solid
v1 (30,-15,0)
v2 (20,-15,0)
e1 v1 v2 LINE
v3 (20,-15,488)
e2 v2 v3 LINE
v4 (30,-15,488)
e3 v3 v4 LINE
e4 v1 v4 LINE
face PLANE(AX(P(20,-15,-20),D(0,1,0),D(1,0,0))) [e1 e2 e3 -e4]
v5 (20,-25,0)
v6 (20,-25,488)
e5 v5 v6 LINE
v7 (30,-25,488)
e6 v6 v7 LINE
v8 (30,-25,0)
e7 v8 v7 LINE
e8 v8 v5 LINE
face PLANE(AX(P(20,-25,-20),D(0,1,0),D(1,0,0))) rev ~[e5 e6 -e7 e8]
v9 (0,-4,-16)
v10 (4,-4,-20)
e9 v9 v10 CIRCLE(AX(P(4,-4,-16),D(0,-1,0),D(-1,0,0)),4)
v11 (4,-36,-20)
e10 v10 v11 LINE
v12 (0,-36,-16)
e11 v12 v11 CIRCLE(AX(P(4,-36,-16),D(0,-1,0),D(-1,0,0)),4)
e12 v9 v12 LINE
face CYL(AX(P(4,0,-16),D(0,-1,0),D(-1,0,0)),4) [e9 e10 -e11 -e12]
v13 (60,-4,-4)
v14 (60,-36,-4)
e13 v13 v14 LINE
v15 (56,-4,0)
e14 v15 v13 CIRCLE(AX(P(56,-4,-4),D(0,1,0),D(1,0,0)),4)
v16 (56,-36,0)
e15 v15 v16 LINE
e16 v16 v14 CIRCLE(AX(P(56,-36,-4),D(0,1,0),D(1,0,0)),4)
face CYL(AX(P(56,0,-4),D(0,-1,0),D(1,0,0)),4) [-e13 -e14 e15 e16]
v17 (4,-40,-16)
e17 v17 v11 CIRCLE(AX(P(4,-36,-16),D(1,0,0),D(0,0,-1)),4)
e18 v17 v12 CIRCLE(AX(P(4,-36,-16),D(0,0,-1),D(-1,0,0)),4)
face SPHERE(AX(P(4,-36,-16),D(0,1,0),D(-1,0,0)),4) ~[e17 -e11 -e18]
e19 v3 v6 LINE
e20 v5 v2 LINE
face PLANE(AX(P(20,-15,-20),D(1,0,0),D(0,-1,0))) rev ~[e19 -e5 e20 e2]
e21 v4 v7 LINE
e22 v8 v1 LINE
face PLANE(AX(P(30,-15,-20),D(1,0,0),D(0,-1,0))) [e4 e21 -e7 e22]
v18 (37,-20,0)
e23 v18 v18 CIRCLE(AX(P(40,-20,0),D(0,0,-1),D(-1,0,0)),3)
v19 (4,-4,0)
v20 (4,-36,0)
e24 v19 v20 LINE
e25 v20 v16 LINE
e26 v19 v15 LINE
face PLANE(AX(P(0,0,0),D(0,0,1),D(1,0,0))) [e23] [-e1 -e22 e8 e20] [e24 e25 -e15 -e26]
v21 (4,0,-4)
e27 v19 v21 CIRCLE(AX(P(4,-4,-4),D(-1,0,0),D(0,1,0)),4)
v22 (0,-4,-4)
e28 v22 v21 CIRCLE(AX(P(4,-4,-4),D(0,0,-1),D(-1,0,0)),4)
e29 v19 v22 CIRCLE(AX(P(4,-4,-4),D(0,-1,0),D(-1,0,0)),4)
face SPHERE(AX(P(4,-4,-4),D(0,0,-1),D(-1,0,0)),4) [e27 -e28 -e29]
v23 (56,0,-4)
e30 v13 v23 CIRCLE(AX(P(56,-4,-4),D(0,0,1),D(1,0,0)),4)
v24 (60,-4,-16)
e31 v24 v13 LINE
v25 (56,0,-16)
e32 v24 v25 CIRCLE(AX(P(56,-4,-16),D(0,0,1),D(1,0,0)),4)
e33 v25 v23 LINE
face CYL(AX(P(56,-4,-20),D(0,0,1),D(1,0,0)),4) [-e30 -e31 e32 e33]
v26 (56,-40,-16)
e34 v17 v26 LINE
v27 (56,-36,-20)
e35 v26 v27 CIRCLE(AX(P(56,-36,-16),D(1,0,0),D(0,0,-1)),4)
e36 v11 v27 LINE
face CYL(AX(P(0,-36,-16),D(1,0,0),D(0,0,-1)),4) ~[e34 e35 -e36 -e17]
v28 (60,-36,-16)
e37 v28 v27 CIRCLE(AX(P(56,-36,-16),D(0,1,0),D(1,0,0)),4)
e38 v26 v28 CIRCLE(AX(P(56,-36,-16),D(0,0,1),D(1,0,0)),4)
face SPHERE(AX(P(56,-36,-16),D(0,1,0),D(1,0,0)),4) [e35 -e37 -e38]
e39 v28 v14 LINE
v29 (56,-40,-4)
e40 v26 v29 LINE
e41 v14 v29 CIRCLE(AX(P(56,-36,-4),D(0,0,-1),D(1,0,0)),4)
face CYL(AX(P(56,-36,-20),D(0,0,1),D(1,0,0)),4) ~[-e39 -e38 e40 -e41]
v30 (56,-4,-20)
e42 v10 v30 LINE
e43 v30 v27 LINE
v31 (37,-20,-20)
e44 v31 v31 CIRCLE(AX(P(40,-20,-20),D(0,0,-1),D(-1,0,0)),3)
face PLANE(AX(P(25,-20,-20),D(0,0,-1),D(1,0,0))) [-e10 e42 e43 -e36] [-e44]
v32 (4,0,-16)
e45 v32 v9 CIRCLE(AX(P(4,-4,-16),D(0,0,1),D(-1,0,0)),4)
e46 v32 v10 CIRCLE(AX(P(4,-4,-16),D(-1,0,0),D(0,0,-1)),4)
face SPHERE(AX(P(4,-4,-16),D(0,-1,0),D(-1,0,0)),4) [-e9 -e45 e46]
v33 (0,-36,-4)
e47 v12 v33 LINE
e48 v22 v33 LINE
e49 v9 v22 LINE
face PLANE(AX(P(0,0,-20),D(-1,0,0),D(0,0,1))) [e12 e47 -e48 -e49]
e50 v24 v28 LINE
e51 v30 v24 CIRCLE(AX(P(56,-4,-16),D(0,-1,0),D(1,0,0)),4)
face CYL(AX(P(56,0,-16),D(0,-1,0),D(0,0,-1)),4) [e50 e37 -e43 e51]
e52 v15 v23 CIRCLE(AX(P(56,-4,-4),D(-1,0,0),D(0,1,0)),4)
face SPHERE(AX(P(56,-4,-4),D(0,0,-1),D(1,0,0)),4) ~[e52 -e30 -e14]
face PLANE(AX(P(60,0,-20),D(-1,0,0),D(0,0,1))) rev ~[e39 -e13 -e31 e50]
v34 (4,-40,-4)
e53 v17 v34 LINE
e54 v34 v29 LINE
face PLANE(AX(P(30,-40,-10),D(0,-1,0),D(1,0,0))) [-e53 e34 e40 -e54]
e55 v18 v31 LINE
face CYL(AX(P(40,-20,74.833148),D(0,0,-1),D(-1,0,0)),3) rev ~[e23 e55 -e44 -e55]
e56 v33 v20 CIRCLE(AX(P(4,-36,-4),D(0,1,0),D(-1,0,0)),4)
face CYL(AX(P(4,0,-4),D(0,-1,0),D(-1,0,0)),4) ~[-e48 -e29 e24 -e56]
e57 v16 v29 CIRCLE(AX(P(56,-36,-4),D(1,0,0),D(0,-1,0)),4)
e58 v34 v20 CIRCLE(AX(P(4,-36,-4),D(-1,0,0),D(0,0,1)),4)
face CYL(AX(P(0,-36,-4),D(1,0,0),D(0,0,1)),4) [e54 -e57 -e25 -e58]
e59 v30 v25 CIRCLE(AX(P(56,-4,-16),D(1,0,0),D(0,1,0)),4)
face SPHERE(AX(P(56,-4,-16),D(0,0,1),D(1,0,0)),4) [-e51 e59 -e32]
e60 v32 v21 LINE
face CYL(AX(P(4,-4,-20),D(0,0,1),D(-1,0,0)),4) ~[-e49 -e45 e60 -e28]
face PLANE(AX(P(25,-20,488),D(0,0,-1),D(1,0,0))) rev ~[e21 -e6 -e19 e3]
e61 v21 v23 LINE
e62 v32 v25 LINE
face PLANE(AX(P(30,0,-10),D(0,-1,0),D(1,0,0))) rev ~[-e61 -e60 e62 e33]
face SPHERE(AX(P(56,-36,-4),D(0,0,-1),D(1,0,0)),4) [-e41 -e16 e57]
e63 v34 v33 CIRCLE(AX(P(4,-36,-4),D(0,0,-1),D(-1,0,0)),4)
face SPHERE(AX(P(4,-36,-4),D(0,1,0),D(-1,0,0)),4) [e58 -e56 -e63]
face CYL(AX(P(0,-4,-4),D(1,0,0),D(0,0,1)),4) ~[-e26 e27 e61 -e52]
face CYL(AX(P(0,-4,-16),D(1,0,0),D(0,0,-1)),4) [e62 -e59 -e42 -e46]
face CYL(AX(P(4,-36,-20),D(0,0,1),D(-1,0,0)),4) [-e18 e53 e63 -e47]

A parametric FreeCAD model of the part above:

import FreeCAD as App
import Part
import Sketcher

doc = App.newDocument("Part")
body = doc.addObject("PartDesign::Body", "Body")

# Sketch on XZ plane
sketch1 = body.newObject("Sketcher::SketchObject", "Sketch")
sketch1.AttachmentSupport = (doc.getObject("XZ_Plane"), [""])
sketch1.MapMode = "FlatFace"
sketch1.addGeometry([
    Part.LineSegment(App.Vector(0, 0, 0), App.Vector(0, -20, 0)),
    Part.LineSegment(App.Vector(0, -20, 0), App.Vector(60, -20, 0)),
    Part.LineSegment(App.Vector(60, -20, 0), App.Vector(60, 0, 0)),
    Part.LineSegment(App.Vector(60, 0, 0), App.Vector(0, 0, 0)),
], False)
sketch1.addConstraint([
    Sketcher.Constraint("Coincident", 0, 2, 1, 1),
    Sketcher.Constraint("Coincident", 1, 2, 2, 1),
    Sketcher.Constraint("Coincident", 2, 2, 3, 1),
    Sketcher.Constraint("Coincident", 3, 2, 0, 1),
    Sketcher.Constraint("Vertical", 0),
    Sketcher.Constraint("Horizontal", 1),
    Sketcher.Constraint("Vertical", 2),
    Sketcher.Constraint("Horizontal", 3),
    Sketcher.Constraint("Coincident", 3, 2, -1, 1),
    Sketcher.Constraint("DistanceX", 1, 1, 1, 2, 60.0),
    Sketcher.Constraint("DistanceY", 0, 2, 0, 1, 20.0),
])
pad1 = body.newObject("PartDesign::Pad", "Pad")
pad1.Profile = sketch1
pad1.Length = 40
doc.recompute()

fillet = body.newObject("PartDesign::Fillet", "Fillet")
fillet.Base = (pad1, ["Edge1"])
fillet.UseAllEdges = True
fillet.Radius = 4

# Sketch on XY plane
sketch2 = body.newObject("Sketcher::SketchObject", "Sketch001")
sketch2.AttachmentSupport = (doc.getObject("XY_Plane"), [""])
sketch2.MapMode = "FlatFace"
sketch2.addGeometry(Part.Circle(App.Vector(40, -20, 0), App.Vector(0, 0, 1), 3), False)
sketch2.addConstraint([
    Sketcher.Constraint("Diameter", 0, 6.0),
    Sketcher.Constraint("DistanceX", -1, 1, 0, 3, 40.0),
    Sketcher.Constraint("DistanceY", 0, 3, -1, 1, 20.0),
])
doc.recompute()
hole = body.newObject("PartDesign::Hole", "Hole")
hole.Profile = sketch2
hole.ThreadType = "None"
hole.Diameter = 6
hole.DepthType = "ThroughAll"

# Sketch on XY plane
sketch3 = body.newObject("Sketcher::SketchObject", "Sketch002")
sketch3.AttachmentSupport = (doc.getObject("XY_Plane"), [""])
sketch3.MapMode = "FlatFace"
sketch3.AttachmentOffset = App.Placement(App.Vector(0, 0, -20), App.Rotation())
sketch3.addGeometry([
    Part.LineSegment(App.Vector(20, -25, 0), App.Vector(20, -15, 0)),
    Part.LineSegment(App.Vector(20, -15, 0), App.Vector(30, -15, 0)),
    Part.LineSegment(App.Vector(30, -15, 0), App.Vector(30, -25, 0)),
    Part.LineSegment(App.Vector(30, -25, 0), App.Vector(20, -25, 0)),
], False)
sketch3.addConstraint([
    Sketcher.Constraint("Coincident", 0, 2, 1, 1),
    Sketcher.Constraint("Coincident", 1, 2, 2, 1),
    Sketcher.Constraint("Coincident", 2, 2, 3, 1),
    Sketcher.Constraint("Coincident", 3, 2, 0, 1),
    Sketcher.Constraint("Vertical", 0),
    Sketcher.Constraint("Horizontal", 1),
    Sketcher.Constraint("Vertical", 2),
    Sketcher.Constraint("Horizontal", 3),
    Sketcher.Constraint("Equal", 3, 0),
    Sketcher.Constraint("DistanceX", 1, 1, 1, 2, 10.0),
    Sketcher.Constraint("DistanceX", -1, 1, 0, 2, 20.0),
    Sketcher.Constraint("DistanceY", 0, 2, -1, 1, 15.0),
])
pad2 = body.newObject("PartDesign::Pad", "Pad001")
pad2.Profile = sketch3
pad2.Length = 508

doc.recompute()
